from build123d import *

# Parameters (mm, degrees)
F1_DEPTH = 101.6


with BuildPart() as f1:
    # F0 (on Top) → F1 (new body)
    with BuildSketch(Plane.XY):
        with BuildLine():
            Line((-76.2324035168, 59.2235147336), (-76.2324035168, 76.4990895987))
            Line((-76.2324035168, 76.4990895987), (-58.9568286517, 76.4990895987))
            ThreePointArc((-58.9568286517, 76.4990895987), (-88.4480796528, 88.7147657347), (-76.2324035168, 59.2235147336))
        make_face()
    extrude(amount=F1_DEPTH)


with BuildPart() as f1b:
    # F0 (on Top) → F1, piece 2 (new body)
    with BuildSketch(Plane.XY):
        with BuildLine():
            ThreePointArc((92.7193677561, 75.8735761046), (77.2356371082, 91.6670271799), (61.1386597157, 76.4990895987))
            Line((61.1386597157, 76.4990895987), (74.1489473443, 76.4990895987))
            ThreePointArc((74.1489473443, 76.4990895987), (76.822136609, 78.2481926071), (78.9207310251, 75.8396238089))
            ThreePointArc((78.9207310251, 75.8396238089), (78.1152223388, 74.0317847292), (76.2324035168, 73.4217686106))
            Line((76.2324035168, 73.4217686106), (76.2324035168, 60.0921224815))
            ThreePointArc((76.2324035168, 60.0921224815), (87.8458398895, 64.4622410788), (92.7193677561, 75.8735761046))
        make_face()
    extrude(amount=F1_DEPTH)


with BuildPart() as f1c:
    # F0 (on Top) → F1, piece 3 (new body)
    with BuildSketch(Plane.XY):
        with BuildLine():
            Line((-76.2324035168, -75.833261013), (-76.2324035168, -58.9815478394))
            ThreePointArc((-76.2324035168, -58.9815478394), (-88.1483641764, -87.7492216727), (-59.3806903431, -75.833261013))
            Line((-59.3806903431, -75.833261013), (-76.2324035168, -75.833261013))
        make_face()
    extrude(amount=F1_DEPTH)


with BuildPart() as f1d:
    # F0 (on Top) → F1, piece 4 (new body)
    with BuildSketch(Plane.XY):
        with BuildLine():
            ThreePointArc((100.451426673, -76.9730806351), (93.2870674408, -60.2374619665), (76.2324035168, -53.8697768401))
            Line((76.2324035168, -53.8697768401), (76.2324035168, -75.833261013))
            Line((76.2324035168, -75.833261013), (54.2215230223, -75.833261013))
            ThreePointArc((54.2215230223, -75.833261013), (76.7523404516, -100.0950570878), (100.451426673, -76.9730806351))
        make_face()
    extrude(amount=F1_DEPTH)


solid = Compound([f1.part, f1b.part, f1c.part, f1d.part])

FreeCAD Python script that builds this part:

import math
import FreeCAD as App
import Part
import Sketcher

V = App.Vector
Q = App.Units.Quantity

doc = App.newDocument("Part")
body = doc.addObject("PartDesign::Body", "Body")

# Sketch on XY plane
sketch1 = body.newObject("Sketcher::SketchObject", "Sketch")
sketch1.AttachmentSupport = (doc.getObject("XY_Plane"), [""])
sketch1.MapMode = "FlatFace"
sketch1.addGeometry(Part.LineSegment(V(-76.232404, 59.223515, 0), V(-76.232404, 76.49909, 0)), False)
sketch1.addGeometry(Part.LineSegment(V(-76.232404, 76.49909, 0), V(-58.956829, 76.49909, 0)), False)
sketch1.addGeometry(Part.ArcOfCircle(Part.Circle(V(-76.232404, 76.49909, 0), V(0, 0, 1), 17.275575), math.radians(0), math.radians(270)), False)
sketch1.addConstraint(Sketcher.Constraint("Coincident", 0, 2, 1, 1))
sketch1.addConstraint(Sketcher.Constraint("Coincident", 1, 2, 2, 1))
sketch1.addConstraint(Sketcher.Constraint("Coincident", 2, 2, 0, 1))
sketch1.addConstraint(Sketcher.Constraint("Vertical", 0))
sketch1.addConstraint(Sketcher.Constraint("Horizontal", 1))
sketch1.addConstraint(Sketcher.Constraint("Coincident", 0, 2, 2, 3))
sketch1.addConstraint(Sketcher.Constraint("Radius", 2, 17.275575))
sketch1.addConstraint(Sketcher.Constraint("DistanceY", -1, 1, 2, 3, 76.49909))
sketch1.addConstraint(Sketcher.Constraint("DistanceX", 1, 2, -1, 1, 58.956829))
pad1 = body.newObject("PartDesign::Pad", "Pad")
pad1.Profile = sketch1
pad1.Length = Q("4 in")
body2 = doc.addObject("PartDesign::Body", "Body001")

# Sketch on XY plane
sketch2 = body2.newObject("Sketcher::SketchObject", "Sketch001")
sketch2.AttachmentSupport = (doc.getObject("XY_Plane001"), [""])
sketch2.MapMode = "FlatFace"
sketch2.addGeometry(Part.ArcOfCircle(Part.Circle(V(76.922819, 75.873576, 0), V(0, 0, 1), 15.796549), math.radians(0), math.radians(177.730602)), False)
sketch2.addGeometry(Part.LineSegment(V(61.13866, 76.49909, 0), V(74.148947, 76.49909, 0)), False)
sketch2.addGeometry(Part.ArcOfCircle(Part.Circle(V(76.48927, 75.839624, 0), V(0, 0, 1), 2.431461), math.radians(0), math.radians(164.263004)), False)
sketch2.addGeometry(Part.ArcOfCircle(Part.Circle(V(76.48927, 75.839624, 0), V(0, 0, 1), 2.431461), math.radians(-96.064198), math.radians(0)), False)
sketch2.addGeometry(Part.LineSegment(V(76.232404, 73.421769, 0), V(76.232404, 60.092122, 0)), False)
sketch2.addGeometry(Part.ArcOfCircle(Part.Circle(V(76.922819, 75.873576, 0), V(0, 0, 1), 15.796549), math.radians(-92.505009), math.radians(0)), False)
sketch2.addConstraint(Sketcher.Constraint("Coincident", 0, 2, 1, 1))
sketch2.addConstraint(Sketcher.Constraint("Coincident", 1, 2, 2, 2))
sketch2.addConstraint(Sketcher.Constraint("Tangent", 2, 1, 3, 2))
sketch2.addConstraint(Sketcher.Constraint("Coincident", 3, 1, 4, 1))
sketch2.addConstraint(Sketcher.Constraint("Coincident", 4, 2, 5, 1))
sketch2.addConstraint(Sketcher.Constraint("Tangent", 5, 2, 0, 1))
sketch2.addConstraint(Sketcher.Constraint("Horizontal", 1))
sketch2.addConstraint(Sketcher.Constraint("Vertical", 4))
sketch2.addConstraint(Sketcher.Constraint("Equal", 2, 3))
sketch2.addConstraint(Sketcher.Constraint("Equal", 0, 5))
sketch2.addConstraint(Sketcher.Constraint("Horizontal", 3, 3, 2, 1))
sketch2.addConstraint(Sketcher.Constraint("Horizontal", 0, 3, 5, 2))
sketch2.addConstraint(Sketcher.Constraint("Radius", 0, 15.796549))
sketch2.addConstraint(Sketcher.Constraint("Radius", 2, 2.431461))
sketch2.addConstraint(Sketcher.Constraint("DistanceY", 4, 2, 2, 3, 15.747501))
sketch2.addConstraint(Sketcher.Constraint("DistanceX", 2, 3, 5, 2, 16.230098))
sketch2.addConstraint(Sketcher.Constraint("DistanceX", 1, 1, 1, 2, 13.010288))
sketch2.addConstraint(Sketcher.Constraint("DistanceY", 4, 2, 4, 1, 13.329646))
sketch2.addConstraint(Sketcher.Constraint("DistanceX", -1, 1, 0, 3, 76.922819))
sketch2.addConstraint(Sketcher.Constraint("DistanceY", -1, 1, 0, 2, 76.49909))
pad2 = body2.newObject("PartDesign::Pad", "Pad001")
pad2.Profile = sketch2
pad2.Length = Q("4 in")
body3 = doc.addObject("PartDesign::Body", "Body002")

# Sketch on XY plane
sketch3 = body3.newObject("Sketcher::SketchObject", "Sketch002")
sketch3.AttachmentSupport = (doc.getObject("XY_Plane002"), [""])
sketch3.MapMode = "FlatFace"
sketch3.addGeometry(Part.LineSegment(V(-76.232404, -75.833261, 0), V(-76.232404, -58.981548, 0)), False)
sketch3.addGeometry(Part.ArcOfCircle(Part.Circle(V(-76.232404, -75.833261, 0), V(0, 0, 1), 16.851713), math.radians(90), math.radians(360)), False)
sketch3.addGeometry(Part.LineSegment(V(-59.38069, -75.833261, 0), V(-76.232404, -75.833261, 0)), False)
sketch3.addConstraint(Sketcher.Constraint("Coincident", 0, 2, 1, 1))
sketch3.addConstraint(Sketcher.Constraint("Coincident", 1, 2, 2, 1))
sketch3.addConstraint(Sketcher.Constraint("Coincident", 2, 2, 0, 1))
sketch3.addConstraint(Sketcher.Constraint("Vertical", 0))
sketch3.addConstraint(Sketcher.Constraint("Horizontal", 2))
sketch3.addConstraint(Sketcher.Constraint("Coincident", 2, 2, 1, 3))
sketch3.addConstraint(Sketcher.Constraint("Radius", 1, 16.851713))
sketch3.addConstraint(Sketcher.Constraint("DistanceY", 1, 3, -1, 1, 75.833261))
sketch3.addConstraint(Sketcher.Constraint("DistanceX", 1, 2, -1, 1, 59.38069))
pad3 = body3.newObject("PartDesign::Pad", "Pad002")
pad3.Profile = sketch3
pad3.Length = Q("4 in")
body4 = doc.addObject("PartDesign::Body", "Body003")

# Sketch on XY plane
sketch4 = body4.newObject("Sketcher::SketchObject", "Sketch003")
sketch4.AttachmentSupport = (doc.getObject("XY_Plane003"), [""])
sketch4.MapMode = "FlatFace"
sketch4.addGeometry(Part.ArcOfCircle(Part.Circle(V(77.322423, -76.973081, 0), V(0, 0, 1), 23.129003), math.radians(0), math.radians(92.701227)), False)
sketch4.addGeometry(Part.LineSegment(V(76.232404, -53.869777, 0), V(76.232404, -75.833261, 0)), False)
sketch4.addGeometry(Part.LineSegment(V(76.232404, -75.833261, 0), V(54.221523, -75.833261, 0)), False)
sketch4.addGeometry(Part.ArcOfCircle(Part.Circle(V(77.322423, -76.973081, 0), V(0, 0, 1), 23.129003), math.radians(177.175264), math.radians(360)), False)
sketch4.addConstraint(Sketcher.Constraint("Coincident", 0, 2, 1, 1))
sketch4.addConstraint(Sketcher.Constraint("Coincident", 1, 2, 2, 1))
sketch4.addConstraint(Sketcher.Constraint("Coincident", 2, 2, 3, 1))
sketch4.addConstraint(Sketcher.Constraint("Tangent", 3, 2, 0, 1))
sketch4.addConstraint(Sketcher.Constraint("Vertical", 1))
sketch4.addConstraint(Sketcher.Constraint("Horizontal", 2))
sketch4.addConstraint(Sketcher.Constraint("Equal", 0, 3))
sketch4.addConstraint(Sketcher.Constraint("Horizontal", 0, 3, 3, 2))
sketch4.addConstraint(Sketcher.Constraint("Radius", 0, 23.129003))
sketch4.addConstraint(Sketcher.Constraint("DistanceX", 2, 2, 2, 1, 22.01088))
sketch4.addConstraint(Sketcher.Constraint("DistanceX", 2, 2, 0, 3, 23.1009))
sketch4.addConstraint(Sketcher.Constraint("DistanceY", 0, 3, -1, 1, 76.973081))
sketch4.addConstraint(Sketcher.Constraint("DistanceX", -1, 1, 0, 3, 77.322423))
pad4 = body4.newObject("PartDesign::Pad", "Pad003")
pad4.Profile = sketch4
pad4.Length = Q("4 in")

doc.recompute()
